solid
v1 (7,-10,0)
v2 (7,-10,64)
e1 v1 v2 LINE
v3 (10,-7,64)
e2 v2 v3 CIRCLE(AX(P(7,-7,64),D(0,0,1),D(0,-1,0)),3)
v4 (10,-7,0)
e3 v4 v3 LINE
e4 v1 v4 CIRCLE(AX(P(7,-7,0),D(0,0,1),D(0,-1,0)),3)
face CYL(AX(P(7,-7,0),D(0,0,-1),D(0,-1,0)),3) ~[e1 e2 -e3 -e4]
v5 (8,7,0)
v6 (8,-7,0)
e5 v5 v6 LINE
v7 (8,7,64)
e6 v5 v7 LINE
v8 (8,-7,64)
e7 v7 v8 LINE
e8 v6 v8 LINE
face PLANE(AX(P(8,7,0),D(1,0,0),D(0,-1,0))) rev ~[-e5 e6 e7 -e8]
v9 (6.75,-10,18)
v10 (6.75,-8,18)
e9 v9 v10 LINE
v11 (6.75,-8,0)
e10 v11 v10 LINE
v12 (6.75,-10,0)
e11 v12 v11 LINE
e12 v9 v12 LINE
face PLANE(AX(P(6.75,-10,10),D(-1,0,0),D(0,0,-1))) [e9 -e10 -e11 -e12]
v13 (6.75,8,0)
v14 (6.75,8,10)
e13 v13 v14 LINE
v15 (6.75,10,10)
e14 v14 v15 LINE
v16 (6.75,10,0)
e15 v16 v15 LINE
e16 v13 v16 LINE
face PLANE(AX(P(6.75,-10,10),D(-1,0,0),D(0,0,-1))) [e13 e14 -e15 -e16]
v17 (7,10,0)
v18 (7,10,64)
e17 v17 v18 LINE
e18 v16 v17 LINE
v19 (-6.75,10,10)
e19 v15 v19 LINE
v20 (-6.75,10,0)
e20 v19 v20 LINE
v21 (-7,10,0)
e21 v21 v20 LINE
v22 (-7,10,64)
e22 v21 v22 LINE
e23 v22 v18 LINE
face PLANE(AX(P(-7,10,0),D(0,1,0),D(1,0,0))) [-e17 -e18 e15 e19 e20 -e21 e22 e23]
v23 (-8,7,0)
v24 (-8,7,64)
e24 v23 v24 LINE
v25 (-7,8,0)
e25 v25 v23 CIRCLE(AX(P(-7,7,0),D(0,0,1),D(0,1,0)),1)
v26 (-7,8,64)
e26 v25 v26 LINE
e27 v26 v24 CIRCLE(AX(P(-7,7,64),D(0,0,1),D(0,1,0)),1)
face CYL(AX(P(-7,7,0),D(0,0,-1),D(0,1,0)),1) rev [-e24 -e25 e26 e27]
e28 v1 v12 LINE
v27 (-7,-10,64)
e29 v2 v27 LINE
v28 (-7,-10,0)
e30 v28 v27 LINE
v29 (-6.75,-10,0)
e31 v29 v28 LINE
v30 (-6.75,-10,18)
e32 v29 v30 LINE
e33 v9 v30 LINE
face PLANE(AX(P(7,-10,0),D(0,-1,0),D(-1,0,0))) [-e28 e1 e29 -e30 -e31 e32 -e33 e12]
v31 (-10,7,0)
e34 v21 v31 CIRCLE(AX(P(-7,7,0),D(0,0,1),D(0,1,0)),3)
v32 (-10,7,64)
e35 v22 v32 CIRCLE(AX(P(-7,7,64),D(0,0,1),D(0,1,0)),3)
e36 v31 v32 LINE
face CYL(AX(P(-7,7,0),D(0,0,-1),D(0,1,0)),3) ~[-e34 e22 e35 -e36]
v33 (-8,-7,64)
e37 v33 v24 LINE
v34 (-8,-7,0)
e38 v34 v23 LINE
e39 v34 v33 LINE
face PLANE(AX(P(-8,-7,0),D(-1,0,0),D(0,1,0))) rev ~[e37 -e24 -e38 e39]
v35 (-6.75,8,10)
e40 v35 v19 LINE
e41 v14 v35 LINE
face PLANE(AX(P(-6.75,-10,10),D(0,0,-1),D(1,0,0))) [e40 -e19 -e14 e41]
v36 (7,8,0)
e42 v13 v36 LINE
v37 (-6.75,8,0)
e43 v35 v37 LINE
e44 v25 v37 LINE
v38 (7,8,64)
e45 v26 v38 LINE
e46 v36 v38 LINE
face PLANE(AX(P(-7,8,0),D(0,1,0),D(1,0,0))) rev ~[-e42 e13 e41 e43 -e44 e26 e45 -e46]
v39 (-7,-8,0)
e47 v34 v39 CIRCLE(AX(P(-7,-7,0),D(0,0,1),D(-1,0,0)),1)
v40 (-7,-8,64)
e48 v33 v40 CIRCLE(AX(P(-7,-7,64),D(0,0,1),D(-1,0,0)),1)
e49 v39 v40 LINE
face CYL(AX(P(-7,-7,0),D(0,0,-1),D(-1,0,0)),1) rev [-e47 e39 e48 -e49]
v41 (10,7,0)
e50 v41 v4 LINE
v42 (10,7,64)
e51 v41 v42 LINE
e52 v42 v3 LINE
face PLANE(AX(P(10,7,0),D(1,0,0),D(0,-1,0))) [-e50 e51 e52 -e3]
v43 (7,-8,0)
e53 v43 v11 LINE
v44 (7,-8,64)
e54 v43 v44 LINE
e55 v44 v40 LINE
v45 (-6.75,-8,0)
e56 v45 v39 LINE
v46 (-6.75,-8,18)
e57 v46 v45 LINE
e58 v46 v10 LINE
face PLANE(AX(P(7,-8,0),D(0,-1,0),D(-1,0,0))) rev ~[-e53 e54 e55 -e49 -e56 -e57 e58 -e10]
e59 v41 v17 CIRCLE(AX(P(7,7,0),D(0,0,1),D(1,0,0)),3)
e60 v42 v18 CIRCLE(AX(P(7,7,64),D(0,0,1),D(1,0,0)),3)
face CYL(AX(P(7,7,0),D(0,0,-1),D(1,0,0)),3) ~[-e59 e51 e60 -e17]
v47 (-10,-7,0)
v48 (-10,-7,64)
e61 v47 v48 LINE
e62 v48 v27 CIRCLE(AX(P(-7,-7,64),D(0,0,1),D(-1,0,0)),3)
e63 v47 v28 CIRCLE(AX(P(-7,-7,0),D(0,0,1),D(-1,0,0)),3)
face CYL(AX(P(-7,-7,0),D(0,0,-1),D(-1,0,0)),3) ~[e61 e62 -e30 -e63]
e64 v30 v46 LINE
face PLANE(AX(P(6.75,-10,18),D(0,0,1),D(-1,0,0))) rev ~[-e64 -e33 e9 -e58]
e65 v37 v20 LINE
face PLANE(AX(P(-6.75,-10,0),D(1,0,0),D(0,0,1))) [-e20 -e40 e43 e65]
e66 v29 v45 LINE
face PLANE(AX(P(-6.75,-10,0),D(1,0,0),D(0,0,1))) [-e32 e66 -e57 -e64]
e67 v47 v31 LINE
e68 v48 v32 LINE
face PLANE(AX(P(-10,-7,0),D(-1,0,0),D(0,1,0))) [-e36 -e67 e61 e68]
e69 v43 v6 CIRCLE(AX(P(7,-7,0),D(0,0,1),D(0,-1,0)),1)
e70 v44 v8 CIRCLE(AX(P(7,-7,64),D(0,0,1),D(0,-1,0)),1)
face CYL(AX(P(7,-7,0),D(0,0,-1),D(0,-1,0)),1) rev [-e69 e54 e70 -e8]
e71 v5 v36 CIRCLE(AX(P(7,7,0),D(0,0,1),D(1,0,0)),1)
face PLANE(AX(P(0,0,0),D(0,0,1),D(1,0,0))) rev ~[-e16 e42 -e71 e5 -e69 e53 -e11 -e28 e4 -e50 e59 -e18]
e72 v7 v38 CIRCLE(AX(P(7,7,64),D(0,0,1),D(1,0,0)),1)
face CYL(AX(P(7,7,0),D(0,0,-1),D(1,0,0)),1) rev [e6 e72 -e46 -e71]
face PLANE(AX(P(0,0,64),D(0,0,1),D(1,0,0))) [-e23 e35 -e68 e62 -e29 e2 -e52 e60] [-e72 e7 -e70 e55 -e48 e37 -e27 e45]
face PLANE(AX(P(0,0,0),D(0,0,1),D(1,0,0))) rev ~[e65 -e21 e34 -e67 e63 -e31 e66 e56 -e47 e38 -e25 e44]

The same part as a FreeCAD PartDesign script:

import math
import FreeCAD as App
import Part
import Sketcher


def add_polygon(sketch, points):
    """Adds a closed chain of lines whose ends are joined by coincident constraints."""
    first, n = sketch.GeometryCount, len(points)
    for a, b in zip(points, points[1:] + points[:1]):
        sketch.addGeometry(Part.LineSegment(App.Vector(*a, 0), App.Vector(*b, 0)), False)
    for i in range(n):
        sketch.addConstraint(Sketcher.Constraint("Coincident", first + i, 2, first + (i + 1) % n, 1))

doc = App.newDocument("Part")
body = doc.addObject("PartDesign::Body", "Body")

# Sketch on XY plane
sketch1 = doc.addObject("Sketcher::SketchObject", "Sketch")
body.addObject(sketch1)
sketch1.AttachmentSupport = (doc.XY_Plane, [""])
sketch1.MapMode = "FlatFace"
sketch1.addGeometry(Part.LineSegment(App.Vector(-10, 7, 0), App.Vector(-10, -7, 0)), False)
sketch1.addGeometry(Part.ArcOfCircle(Part.Circle(App.Vector(-7, -7, 0), App.Vector(0, 0, 1), 3), math.radians(180), math.radians(270)), False)
sketch1.addGeometry(Part.LineSegment(App.Vector(-7, -10, 0), App.Vector(7, -10, 0)), False)
sketch1.addGeometry(Part.ArcOfCircle(Part.Circle(App.Vector(7, -7, 0), App.Vector(0, 0, 1), 3), math.radians(-90), math.radians(0)), False)
sketch1.addGeometry(Part.LineSegment(App.Vector(10, -7, 0), App.Vector(10, 7, 0)), False)
sketch1.addGeometry(Part.ArcOfCircle(Part.Circle(App.Vector(7, 7, 0), App.Vector(0, 0, 1), 3), math.radians(0), math.radians(90)), False)
sketch1.addGeometry(Part.LineSegment(App.Vector(7, 10, 0), App.Vector(-7, 10, 0)), False)
sketch1.addGeometry(Part.ArcOfCircle(Part.Circle(App.Vector(-7, 7, 0), App.Vector(0, 0, 1), 3), math.radians(90), math.radians(180)), False)
sketch1.addGeometry(Part.ArcOfCircle(Part.Circle(App.Vector(-7, 7, 0), App.Vector(0, 0, 1), 1), math.radians(90), math.radians(180)), False)
sketch1.addGeometry(Part.LineSegment(App.Vector(-7, 8, 0), App.Vector(7, 8, 0)), False)
sketch1.addGeometry(Part.ArcOfCircle(Part.Circle(App.Vector(7, 7, 0), App.Vector(0, 0, 1), 1), math.radians(0), math.radians(90)), False)
sketch1.addGeometry(Part.LineSegment(App.Vector(8, 7, 0), App.Vector(8, -7, 0)), False)
sketch1.addGeometry(Part.ArcOfCircle(Part.Circle(App.Vector(7, -7, 0), App.Vector(0, 0, 1), 1), math.radians(-90), math.radians(0)), False)
sketch1.addGeometry(Part.LineSegment(App.Vector(7, -8, 0), App.Vector(-7, -8, 0)), False)
sketch1.addGeometry(Part.ArcOfCircle(Part.Circle(App.Vector(-7, -7, 0), App.Vector(0, 0, 1), 1), math.radians(180), math.radians(270)), False)
sketch1.addGeometry(Part.LineSegment(App.Vector(-8, -7, 0), App.Vector(-8, 7, 0)), False)
sketch1.addConstraint(Sketcher.Constraint("Tangent", 0, 2, 1, 1))
sketch1.addConstraint(Sketcher.Constraint("Tangent", 1, 2, 2, 1))
sketch1.addConstraint(Sketcher.Constraint("Tangent", 2, 2, 3, 1))
sketch1.addConstraint(Sketcher.Constraint("Tangent", 3, 2, 4, 1))
sketch1.addConstraint(Sketcher.Constraint("Tangent", 4, 2, 5, 1))
sketch1.addConstraint(Sketcher.Constraint("Tangent", 5, 2, 6, 1))
sketch1.addConstraint(Sketcher.Constraint("Tangent", 6, 2, 7, 1))
sketch1.addConstraint(Sketcher.Constraint("Tangent", 7, 2, 0, 1))
sketch1.addConstraint(Sketcher.Constraint("Tangent", 8, 1, 9, 1))
sketch1.addConstraint(Sketcher.Constraint("Tangent", 9, 2, 10, 2))
sketch1.addConstraint(Sketcher.Constraint("Tangent", 10, 1, 11, 1))
sketch1.addConstraint(Sketcher.Constraint("Tangent", 11, 2, 12, 2))
sketch1.addConstraint(Sketcher.Constraint("Tangent", 12, 1, 13, 1))
sketch1.addConstraint(Sketcher.Constraint("Tangent", 13, 2, 14, 2))
sketch1.addConstraint(Sketcher.Constraint("Tangent", 14, 1, 15, 1))
sketch1.addConstraint(Sketcher.Constraint("Tangent", 15, 2, 8, 2))
sketch1.addConstraint(Sketcher.Constraint("Vertical", 0))
sketch1.addConstraint(Sketcher.Constraint("Horizontal", 2))
sketch1.addConstraint(Sketcher.Constraint("Vertical", 4))
sketch1.addConstraint(Sketcher.Constraint("Horizontal", 6))
sketch1.addConstraint(Sketcher.Constraint("Horizontal", 9))
sketch1.addConstraint(Sketcher.Constraint("Vertical", 11))
sketch1.addConstraint(Sketcher.Constraint("Horizontal", 13))
sketch1.addConstraint(Sketcher.Constraint("Vertical", 15))
sketch1.addConstraint(Sketcher.Constraint("Coincident", 8, 3, 7, 3))
sketch1.addConstraint(Sketcher.Constraint("Coincident", 10, 3, 5, 3))
sketch1.addConstraint(Sketcher.Constraint("Coincident", 12, 3, 3, 3))
sketch1.addConstraint(Sketcher.Constraint("Equal", 1, 3))
sketch1.addConstraint(Sketcher.Constraint("Equal", 3, 5))
sketch1.addConstraint(Sketcher.Constraint("Equal", 5, 7))
sketch1.addConstraint(Sketcher.Constraint("Equal", 12, 14))
sketch1.addConstraint(Sketcher.Constraint("Symmetric", 1, 3, 5, 3, -1, 1))
sketch1.addConstraint(Sketcher.Constraint("Equal", 13, 0))
sketch1.addConstraint(Sketcher.Constraint("Radius", 1, 3.0))
sketch1.addConstraint(Sketcher.Constraint("Radius", 8, 1.0))
sketch1.addConstraint(Sketcher.Constraint("DistanceX", 0, 2, -1, 1, 10.0))
pad1 = doc.addObject("PartDesign::Pad", "Pad")
body.addObject(pad1)
pad1.Profile = sketch1
pad1.Length = 64

# Sketch on XZ plane
sketch2 = doc.addObject("Sketcher::SketchObject", "Sketch001")
body.addObject(sketch2)
sketch2.AttachmentSupport = (doc.XZ_Plane, [""])
sketch2.MapMode = "FlatFace"
sketch2.AttachmentOffset = App.Placement(App.Vector(0, 0, 10), App.Rotation())
add_polygon(sketch2, [(7, 0), (7, 10), (-7, 10), (-7, 0)])  # lines 0-3
sketch2.addConstraint(Sketcher.Constraint("Vertical", 0))
sketch2.addConstraint(Sketcher.Constraint("Horizontal", 1))
sketch2.addConstraint(Sketcher.Constraint("Vertical", 2))
sketch2.addConstraint(Sketcher.Constraint("Horizontal", 3))
sketch2.addConstraint(Sketcher.Constraint("Symmetric", 2, 2, 3, 2, -1, 1))
sketch2.addConstraint(Sketcher.Constraint("DistanceY", 0, 1, 0, 2, 10.0))
sketch2.addConstraint(Sketcher.Constraint("DistanceX", 1, 2, 1, 1, 13.5))
pocket1 = doc.addObject("PartDesign::Pocket", "Pocket")
body.addObject(pocket1)
pocket1.Profile = sketch2
pocket1.Type = "ThroughAll"

# Sketch on XZ plane
sketch3 = doc.addObject("Sketcher::SketchObject", "Sketch002")
body.addObject(sketch3)
sketch3.AttachmentSupport = (doc.XZ_Plane, [""])
sketch3.MapMode = "FlatFace"
sketch3.AttachmentOffset = App.Placement(App.Vector(0, 0, 10), App.Rotation())
add_polygon(sketch3, [(7, 10), (7, 18), (-7, 18), (-7, 10)])  # lines 0-3
sketch3.addConstraint(Sketcher.Constraint("Vertical", 0))
sketch3.addConstraint(Sketcher.Constraint("Horizontal", 1))
sketch3.addConstraint(Sketcher.Constraint("Vertical", 2))
sketch3.addConstraint(Sketcher.Constraint("Horizontal", 3))
sketch3.addConstraint(Sketcher.Constraint("DistanceY", 0, 1, 0, 2, 8.0))
sketch3.addConstraint(Sketcher.Constraint("DistanceX", 1, 2, 1, 1, 13.5))
sketch3.addConstraint(Sketcher.Constraint("DistanceY", -1, 1, 0, 2, 18.0))
sketch3.addConstraint(Sketcher.Constraint("DistanceX", -1, 1, 0, 2, 6.75))
pocket2 = doc.addObject("PartDesign::Pocket", "Pocket001")
body.addObject(pocket2)
pocket2.Profile = sketch3
pocket2.Type = "UpToFirst"

doc.recompute()
